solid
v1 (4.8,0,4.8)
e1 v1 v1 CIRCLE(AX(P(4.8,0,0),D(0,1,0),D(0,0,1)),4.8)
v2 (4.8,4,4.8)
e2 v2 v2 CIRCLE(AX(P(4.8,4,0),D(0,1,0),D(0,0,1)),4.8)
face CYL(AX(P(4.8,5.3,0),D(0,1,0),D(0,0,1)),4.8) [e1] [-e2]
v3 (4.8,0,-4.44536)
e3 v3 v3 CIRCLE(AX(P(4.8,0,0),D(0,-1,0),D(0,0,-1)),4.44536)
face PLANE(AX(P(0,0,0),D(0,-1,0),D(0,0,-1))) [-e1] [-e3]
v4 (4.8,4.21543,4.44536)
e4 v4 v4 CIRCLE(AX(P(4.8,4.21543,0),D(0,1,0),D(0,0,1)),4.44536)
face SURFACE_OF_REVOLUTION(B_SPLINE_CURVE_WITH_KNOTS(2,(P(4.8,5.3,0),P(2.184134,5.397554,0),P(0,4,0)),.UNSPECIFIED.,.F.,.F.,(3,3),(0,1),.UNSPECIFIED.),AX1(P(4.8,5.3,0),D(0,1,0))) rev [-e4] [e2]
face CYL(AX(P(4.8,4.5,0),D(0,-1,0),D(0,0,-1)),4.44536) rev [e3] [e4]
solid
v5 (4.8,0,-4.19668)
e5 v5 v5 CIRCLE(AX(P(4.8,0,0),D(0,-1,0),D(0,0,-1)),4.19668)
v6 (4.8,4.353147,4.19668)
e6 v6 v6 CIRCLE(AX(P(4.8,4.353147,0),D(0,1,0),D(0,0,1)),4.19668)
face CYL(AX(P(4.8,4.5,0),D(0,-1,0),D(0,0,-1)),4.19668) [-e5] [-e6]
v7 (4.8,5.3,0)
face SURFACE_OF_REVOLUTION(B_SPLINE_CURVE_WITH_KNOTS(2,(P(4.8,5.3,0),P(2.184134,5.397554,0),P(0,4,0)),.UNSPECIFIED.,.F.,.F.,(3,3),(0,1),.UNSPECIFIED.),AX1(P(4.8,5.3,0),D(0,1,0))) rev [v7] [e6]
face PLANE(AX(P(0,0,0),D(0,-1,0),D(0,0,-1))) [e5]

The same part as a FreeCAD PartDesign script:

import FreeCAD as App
import Part
import Sketcher

V = App.Vector

doc = App.newDocument("Part")
body = doc.addObject("PartDesign::Body", "Body")
body.AllowCompound = True

sketch1 = body.newObject("Sketcher::SketchObject", "Sketch")
sketch1.AttachmentSupport = (doc.getObject("XY_Plane"), [""])
sketch1.MapMode = "FlatFace"
sketch1.addGeometry(Part.LineSegment(V(0, 4, 0), V(0, 0, 0)), False)
sketch1.addGeometry(Part.LineSegment(V(0, 0, 0), V(4.8, 0, 0)), False)
sketch1.addGeometry(Part.LineSegment(V(4.8, 0, 0), V(4.8, 5.3, 0)), False)
sketch1.addGeometry(Part.BSplineCurve([V(0, 4, 0), V(2.184134, 5.397554, 0), V(4.8, 5.3, 0)], [3, 3], [0, 1], False, 2, [1, 1, 1], False), False)
sketch1.addGeometry(Part.LineSegment(V(4.8, 5.3, 0), V(4.8, 0, 0)), True)
sketch1.addConstraint(Sketcher.Constraint("Block", 3))
sketch1.addConstraint(Sketcher.Constraint("Coincident", 0, 2, 1, 1))
sketch1.addConstraint(Sketcher.Constraint("Coincident", 1, 2, 2, 1))
sketch1.addConstraint(Sketcher.Constraint("Coincident", 2, 2, 3, 2))
sketch1.addConstraint(Sketcher.Constraint("Coincident", 3, 1, 0, 1))
sketch1.addConstraint(Sketcher.Constraint("Vertical", 0))
sketch1.addConstraint(Sketcher.Constraint("Horizontal", 1))
sketch1.addConstraint(Sketcher.Constraint("Vertical", 2))
sketch1.addConstraint(Sketcher.Constraint("Vertical", 4))
sketch1.addConstraint(Sketcher.Constraint("Coincident", 4, 1, 2, 2))
sketch1.addConstraint(Sketcher.Constraint("PointOnObject", 1, 2, -1))
sketch1.addConstraint(Sketcher.Constraint("PointOnObject", 4, 2, -1))
revolution = body.newObject("PartDesign::Revolution", "Revolution")
revolution.Profile = sketch1
revolution.ReferenceAxis = (sketch1, ["Axis0"])
revolution.Angle = 360

sketch2 = body.newObject("Sketcher::SketchObject", "Sketch001")
sketch2.AttachmentSupport = (doc.getObject("XZ_Plane"), [""])
sketch2.MapMode = "FlatFace"
sketch2.addGeometry(Part.Circle(V(4.8, 0, 0), V(0, 0, 1), 4.44536), False)
sketch2.addGeometry(Part.Circle(V(4.8, 0, 0), V(0, 0, 1), 4.19668), False)
sketch2.addConstraint(Sketcher.Constraint("Coincident", 1, 3, 0, 3))
sketch2.addConstraint(Sketcher.Constraint("PointOnObject", 0, 3, -1))
sketch2.addConstraint(Sketcher.Constraint("DistanceX", -1, 1, 0, 3, 4.8))
sketch2.addConstraint(Sketcher.Constraint("Diameter", 0, 8.890721))
sketch2.addConstraint(Sketcher.Constraint("Diameter", 1, 8.393359))
pocket1 = body.newObject("PartDesign::Pocket", "Pocket")
pocket1.Profile = sketch2
pocket1.Length = 4.5

doc.recompute()
